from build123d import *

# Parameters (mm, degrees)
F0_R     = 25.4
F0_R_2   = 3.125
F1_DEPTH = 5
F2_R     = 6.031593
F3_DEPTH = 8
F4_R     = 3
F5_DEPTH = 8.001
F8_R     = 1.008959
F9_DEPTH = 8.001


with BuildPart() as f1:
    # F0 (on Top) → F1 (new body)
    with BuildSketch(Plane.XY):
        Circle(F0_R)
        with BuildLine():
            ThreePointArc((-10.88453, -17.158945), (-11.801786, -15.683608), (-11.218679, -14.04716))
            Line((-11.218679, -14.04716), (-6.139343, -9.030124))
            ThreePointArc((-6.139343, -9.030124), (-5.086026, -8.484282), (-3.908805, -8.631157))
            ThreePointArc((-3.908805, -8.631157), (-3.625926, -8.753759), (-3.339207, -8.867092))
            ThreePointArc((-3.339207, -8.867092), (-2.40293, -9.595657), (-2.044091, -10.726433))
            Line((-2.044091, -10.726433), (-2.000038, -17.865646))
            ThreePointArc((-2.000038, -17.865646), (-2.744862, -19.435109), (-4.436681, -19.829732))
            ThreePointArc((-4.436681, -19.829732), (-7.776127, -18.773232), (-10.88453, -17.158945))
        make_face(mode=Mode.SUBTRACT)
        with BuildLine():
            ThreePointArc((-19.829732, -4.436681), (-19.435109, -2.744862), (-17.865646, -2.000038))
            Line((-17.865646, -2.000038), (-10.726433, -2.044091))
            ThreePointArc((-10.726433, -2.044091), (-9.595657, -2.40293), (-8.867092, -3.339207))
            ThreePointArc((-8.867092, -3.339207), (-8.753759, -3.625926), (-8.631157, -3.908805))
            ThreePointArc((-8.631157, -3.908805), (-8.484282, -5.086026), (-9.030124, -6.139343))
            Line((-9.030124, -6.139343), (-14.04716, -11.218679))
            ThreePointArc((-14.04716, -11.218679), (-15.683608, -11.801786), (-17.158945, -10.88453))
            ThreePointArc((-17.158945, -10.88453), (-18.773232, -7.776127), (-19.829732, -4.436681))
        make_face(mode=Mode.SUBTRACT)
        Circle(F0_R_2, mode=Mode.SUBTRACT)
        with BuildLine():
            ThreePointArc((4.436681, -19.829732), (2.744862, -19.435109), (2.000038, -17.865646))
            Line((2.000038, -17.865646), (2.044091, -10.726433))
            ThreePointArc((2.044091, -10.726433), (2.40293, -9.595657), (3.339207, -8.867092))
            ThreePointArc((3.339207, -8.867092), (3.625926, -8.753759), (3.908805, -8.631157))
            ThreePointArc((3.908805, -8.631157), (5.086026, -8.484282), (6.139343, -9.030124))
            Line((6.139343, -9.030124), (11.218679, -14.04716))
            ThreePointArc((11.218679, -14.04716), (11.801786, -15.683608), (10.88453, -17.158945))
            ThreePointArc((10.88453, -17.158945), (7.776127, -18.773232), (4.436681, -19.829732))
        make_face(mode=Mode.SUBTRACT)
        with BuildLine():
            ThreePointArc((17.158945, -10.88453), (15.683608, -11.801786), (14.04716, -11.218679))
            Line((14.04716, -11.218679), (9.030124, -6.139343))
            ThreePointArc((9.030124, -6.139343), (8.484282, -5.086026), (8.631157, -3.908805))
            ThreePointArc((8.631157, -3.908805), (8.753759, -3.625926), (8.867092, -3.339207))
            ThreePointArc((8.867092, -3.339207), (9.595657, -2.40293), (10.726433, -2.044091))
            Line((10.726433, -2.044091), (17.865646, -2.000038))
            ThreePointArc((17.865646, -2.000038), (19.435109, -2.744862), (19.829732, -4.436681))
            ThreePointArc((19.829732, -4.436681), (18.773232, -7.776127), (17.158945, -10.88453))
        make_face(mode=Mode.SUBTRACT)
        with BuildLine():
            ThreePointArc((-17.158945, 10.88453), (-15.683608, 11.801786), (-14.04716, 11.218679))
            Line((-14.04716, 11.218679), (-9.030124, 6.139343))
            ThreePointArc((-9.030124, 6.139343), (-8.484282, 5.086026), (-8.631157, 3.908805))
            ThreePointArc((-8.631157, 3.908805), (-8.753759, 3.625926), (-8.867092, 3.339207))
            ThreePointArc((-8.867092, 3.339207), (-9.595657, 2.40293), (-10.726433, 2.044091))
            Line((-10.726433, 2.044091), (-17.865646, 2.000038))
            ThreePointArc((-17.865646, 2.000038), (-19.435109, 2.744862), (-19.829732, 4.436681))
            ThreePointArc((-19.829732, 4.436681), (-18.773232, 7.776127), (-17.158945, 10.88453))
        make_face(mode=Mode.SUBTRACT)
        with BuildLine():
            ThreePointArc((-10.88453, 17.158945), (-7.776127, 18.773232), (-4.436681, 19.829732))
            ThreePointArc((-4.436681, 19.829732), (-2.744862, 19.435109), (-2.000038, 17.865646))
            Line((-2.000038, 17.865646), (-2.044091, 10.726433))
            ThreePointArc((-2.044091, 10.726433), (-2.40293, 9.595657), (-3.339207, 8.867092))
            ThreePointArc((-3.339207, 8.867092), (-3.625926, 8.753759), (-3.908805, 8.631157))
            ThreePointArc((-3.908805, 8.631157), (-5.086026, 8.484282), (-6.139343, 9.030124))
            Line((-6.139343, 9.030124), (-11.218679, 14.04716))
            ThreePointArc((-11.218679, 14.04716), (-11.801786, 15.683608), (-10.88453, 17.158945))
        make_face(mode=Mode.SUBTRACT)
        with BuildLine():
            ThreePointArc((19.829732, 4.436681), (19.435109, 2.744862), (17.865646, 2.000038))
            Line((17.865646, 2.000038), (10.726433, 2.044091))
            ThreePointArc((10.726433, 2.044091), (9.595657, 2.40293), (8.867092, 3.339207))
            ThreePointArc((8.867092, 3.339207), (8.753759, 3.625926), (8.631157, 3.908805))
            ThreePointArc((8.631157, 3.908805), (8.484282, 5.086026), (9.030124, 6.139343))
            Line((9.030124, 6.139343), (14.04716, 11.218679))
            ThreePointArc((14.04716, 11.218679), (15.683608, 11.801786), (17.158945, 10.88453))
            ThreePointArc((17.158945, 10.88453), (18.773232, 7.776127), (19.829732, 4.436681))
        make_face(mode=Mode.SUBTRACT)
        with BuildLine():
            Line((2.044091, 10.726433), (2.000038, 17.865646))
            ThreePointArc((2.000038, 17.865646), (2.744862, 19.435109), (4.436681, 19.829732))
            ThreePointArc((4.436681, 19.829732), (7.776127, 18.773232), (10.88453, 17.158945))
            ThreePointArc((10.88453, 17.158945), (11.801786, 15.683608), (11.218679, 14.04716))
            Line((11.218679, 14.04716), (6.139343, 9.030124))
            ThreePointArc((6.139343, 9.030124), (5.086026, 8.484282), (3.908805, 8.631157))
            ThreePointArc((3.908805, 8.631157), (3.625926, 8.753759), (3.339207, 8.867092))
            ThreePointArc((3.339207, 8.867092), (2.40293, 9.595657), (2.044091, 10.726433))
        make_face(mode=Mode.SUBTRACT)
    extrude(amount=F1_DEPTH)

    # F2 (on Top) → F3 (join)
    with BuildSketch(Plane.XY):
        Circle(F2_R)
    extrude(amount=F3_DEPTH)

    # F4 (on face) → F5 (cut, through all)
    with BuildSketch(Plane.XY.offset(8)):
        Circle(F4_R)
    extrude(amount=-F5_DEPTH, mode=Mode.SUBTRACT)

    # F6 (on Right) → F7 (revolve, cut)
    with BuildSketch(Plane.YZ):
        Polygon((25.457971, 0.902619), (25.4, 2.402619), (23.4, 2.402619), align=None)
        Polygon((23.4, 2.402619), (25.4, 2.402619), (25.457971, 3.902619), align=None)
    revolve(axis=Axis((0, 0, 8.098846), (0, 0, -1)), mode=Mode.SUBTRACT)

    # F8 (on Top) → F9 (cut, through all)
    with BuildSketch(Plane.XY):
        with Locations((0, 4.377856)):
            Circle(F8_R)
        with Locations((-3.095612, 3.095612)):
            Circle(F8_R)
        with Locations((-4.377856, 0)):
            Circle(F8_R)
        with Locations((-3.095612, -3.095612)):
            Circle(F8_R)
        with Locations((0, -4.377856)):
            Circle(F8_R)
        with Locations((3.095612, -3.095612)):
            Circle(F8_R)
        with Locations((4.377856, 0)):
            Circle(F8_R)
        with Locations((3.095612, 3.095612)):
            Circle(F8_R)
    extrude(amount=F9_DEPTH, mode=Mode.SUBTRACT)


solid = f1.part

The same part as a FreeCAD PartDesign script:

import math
import FreeCAD as App
import Part
import Sketcher


def add_polygon(sketch, points):
    """Adds a closed chain of lines whose ends are joined by coincident constraints."""
    first, n = sketch.GeometryCount, len(points)
    for a, b in zip(points, points[1:] + points[:1]):
        sketch.addGeometry(Part.LineSegment(App.Vector(*a, 0), App.Vector(*b, 0)), False)
    for i in range(n):
        sketch.addConstraint(Sketcher.Constraint("Coincident", first + i, 2, first + (i + 1) % n, 1))

doc = App.newDocument("Part")
body = doc.addObject("PartDesign::Body", "Body")

# Sketch on XY plane
sketch1 = doc.addObject("Sketcher::SketchObject", "Sketch")
body.addObject(sketch1)
sketch1.AttachmentSupport = (doc.XY_Plane, [""])
sketch1.MapMode = "FlatFace"
sketch1.addGeometry([
    Part.Circle(App.Vector(0, 0, 0), App.Vector(0, 0, 1), 25.4),  # 0
    Part.ArcOfCircle(Part.Circle(App.Vector(0.000006, 0.000011, 0), App.Vector(0, 0, 1), 20.320012), math.radians(-122.38841), math.radians(-102.611597)),  # 1
    Part.ArcOfCircle(Part.Circle(App.Vector(-9.813218, -15.470072, 0), App.Vector(0, 0, 1), 2), math.radians(134.646484), math.radians(237.61159)),  # 2
    Part.LineSegment(App.Vector(-11.218679, -14.04716, 0), App.Vector(-6.139343, -9.030124, 0)),  # 3
    Part.ArcOfCircle(Part.Circle(App.Vector(-4.733883, -10.453035, 0), App.Vector(0, 0, 1), 1.999999), math.radians(65.635551), math.radians(134.646482)),  # 4
    Part.ArcOfCircle(Part.Circle(App.Vector(-0.000391, -0.000936, 0), App.Vector(0, 0, 1), 9.473986), math.radians(-114.364598), math.radians(-110.635364)),  # 5
    Part.ArcOfCircle(Part.Circle(App.Vector(-4.044053, -10.738774, 0), App.Vector(0, 0, 1), 2), math.radians(0.353533), math.radians(69.364417)),  # 6
    Part.LineSegment(App.Vector(-2.044091, -10.726433, 0), App.Vector(-2.000038, -17.865646, 0)),  # 7
    Part.ArcOfCircle(Part.Circle(App.Vector(-4, -17.877987, 0), App.Vector(0, 0, 1), 2), math.radians(-102.611598), math.radians(0.353553)),  # 8
    Part.ArcOfCircle(Part.Circle(App.Vector(0.000011, 0.000006, 0), App.Vector(0, 0, 1), 20.320012), math.radians(-167.388403), math.radians(-147.61159)),  # 9
    Part.ArcOfCircle(Part.Circle(App.Vector(-17.877987, -4, 0), App.Vector(0, 0, 1), 2), math.radians(89.646447), math.radians(192.611598)),  # 10
    Part.LineSegment(App.Vector(-17.865646, -2.000038, 0), App.Vector(-10.726433, -2.044091, 0)),  # 11
    Part.ArcOfCircle(Part.Circle(App.Vector(-10.738774, -4.044053, 0), App.Vector(0, 0, 1), 2), math.radians(20.635583), math.radians(89.646467)),  # 12
    Part.ArcOfCircle(Part.Circle(App.Vector(-0.000936, -0.000391, 0), App.Vector(0, 0, 1), 9.473986), math.radians(-159.364636), math.radians(-155.635402)),  # 13
    Part.ArcOfCircle(Part.Circle(App.Vector(-10.453035, -4.733883, 0), App.Vector(0, 0, 1), 1.999999), math.radians(-44.646482), math.radians(24.364449)),  # 14
    Part.LineSegment(App.Vector(-9.030124, -6.139343, 0), App.Vector(-14.04716, -11.218679, 0)),  # 15
    Part.ArcOfCircle(Part.Circle(App.Vector(-15.470072, -9.813218, 0), App.Vector(0, 0, 1), 2), math.radians(-147.61159), math.radians(-44.646484)),  # 16
    Part.ArcOfCircle(Part.Circle(App.Vector(-0.000006, 0.000011, 0), App.Vector(0, 0, 1), 20.320012), math.radians(-77.388403), math.radians(-57.61159)),  # 17
    Part.ArcOfCircle(Part.Circle(App.Vector(4, -17.877987, 0), App.Vector(0, 0, 1), 2), math.radians(179.646447), math.radians(282.611598)),  # 18
    Part.LineSegment(App.Vector(2.000038, -17.865646, 0), App.Vector(2.044091, -10.726433, 0)),  # 19
    Part.ArcOfCircle(Part.Circle(App.Vector(4.044053, -10.738774, 0), App.Vector(0, 0, 1), 2), math.radians(110.635583), math.radians(179.646467)),  # 20
    Part.ArcOfCircle(Part.Circle(App.Vector(0.000391, -0.000936, 0), App.Vector(0, 0, 1), 9.473986), math.radians(-69.364636), math.radians(-65.635402)),  # 21
    Part.ArcOfCircle(Part.Circle(App.Vector(4.733883, -10.453035, 0), App.Vector(0, 0, 1), 1.999999), math.radians(45.353518), math.radians(114.364449)),  # 22
    Part.LineSegment(App.Vector(6.139343, -9.030124, 0), App.Vector(11.218679, -14.04716, 0)),  # 23
    Part.ArcOfCircle(Part.Circle(App.Vector(9.813218, -15.470072, 0), App.Vector(0, 0, 1), 2), math.radians(-57.61159), math.radians(45.353516)),  # 24
    Part.ArcOfCircle(Part.Circle(App.Vector(-0.000011, 0.000006, 0), App.Vector(0, 0, 1), 20.320012), math.radians(-32.38841), math.radians(-12.611597)),  # 25
    Part.ArcOfCircle(Part.Circle(App.Vector(15.470072, -9.813218, 0), App.Vector(0, 0, 1), 2), math.radians(-135.353516), math.radians(-32.38841)),  # 26
    Part.LineSegment(App.Vector(14.04716, -11.218679, 0), App.Vector(9.030124, -6.139343, 0)),  # 27
    Part.ArcOfCircle(Part.Circle(App.Vector(10.453035, -4.733883, 0), App.Vector(0, 0, 1), 1.999999), math.radians(155.635551), math.radians(224.646482)),  # 28
    Part.ArcOfCircle(Part.Circle(App.Vector(0.000936, -0.000391, 0), App.Vector(0, 0, 1), 9.473986), math.radians(-24.364598), math.radians(-20.635364)),  # 29
    Part.ArcOfCircle(Part.Circle(App.Vector(10.738774, -4.044053, 0), App.Vector(0, 0, 1), 2), math.radians(90.353533), math.radians(159.364417)),  # 30
    Part.LineSegment(App.Vector(10.726433, -2.044091, 0), App.Vector(17.865646, -2.000038, 0)),  # 31
    Part.ArcOfCircle(Part.Circle(App.Vector(17.877987, -4, 0), App.Vector(0, 0, 1), 2), math.radians(-12.611598), math.radians(90.353553)),  # 32
    Part.ArcOfCircle(Part.Circle(App.Vector(0.000011, -0.000006, 0), App.Vector(0, 0, 1), 20.320012), math.radians(147.61159), math.radians(167.388403)),  # 33
    Part.ArcOfCircle(Part.Circle(App.Vector(-15.470072, 9.813218, 0), App.Vector(0, 0, 1), 2), math.radians(44.646484), math.radians(147.61159)),  # 34
    Part.LineSegment(App.Vector(-14.04716, 11.218679, 0), App.Vector(-9.030124, 6.139343, 0)),  # 35
    Part.ArcOfCircle(Part.Circle(App.Vector(-10.453035, 4.733883, 0), App.Vector(0, 0, 1), 1.999999), math.radians(-24.364449), math.radians(44.646482)),  # 36
    Part.ArcOfCircle(Part.Circle(App.Vector(-0.000936, 0.000391, 0), App.Vector(0, 0, 1), 9.473986), math.radians(155.635402), math.radians(159.364636)),  # 37
    Part.ArcOfCircle(Part.Circle(App.Vector(-10.738774, 4.044053, 0), App.Vector(0, 0, 1), 2), math.radians(-89.646467), math.radians(-20.635583)),  # 38
    Part.LineSegment(App.Vector(-10.726433, 2.044091, 0), App.Vector(-17.865646, 2.000038, 0)),  # 39
    Part.ArcOfCircle(Part.Circle(App.Vector(-17.877987, 4, 0), App.Vector(0, 0, 1), 2), math.radians(167.388402), math.radians(270.353553)),  # 40
    Part.ArcOfCircle(Part.Circle(App.Vector(-9.813218, 15.470072, 0), App.Vector(0, 0, 1), 2), math.radians(122.38841), math.radians(225.353516)),  # 41
    Part.ArcOfCircle(Part.Circle(App.Vector(0.000006, -0.000011, 0), App.Vector(0, 0, 1), 20.320012), math.radians(102.611597), math.radians(122.38841)),  # 42
    Part.ArcOfCircle(Part.Circle(App.Vector(-4, 17.877987, 0), App.Vector(0, 0, 1), 2), math.radians(-0.353553), math.radians(102.611598)),  # 43
    Part.LineSegment(App.Vector(-2.000038, 17.865646, 0), App.Vector(-2.044091, 10.726433, 0)),  # 44
    Part.ArcOfCircle(Part.Circle(App.Vector(-4.044053, 10.738774, 0), App.Vector(0, 0, 1), 2), math.radians(-69.364417), math.radians(-0.353533)),  # 45
    Part.ArcOfCircle(Part.Circle(App.Vector(-0.000391, 0.000936, 0), App.Vector(0, 0, 1), 9.473986), math.radians(110.635364), math.radians(114.364598)),  # 46
    Part.ArcOfCircle(Part.Circle(App.Vector(-4.733883, 10.453035, 0), App.Vector(0, 0, 1), 1.999999), math.radians(-134.646482), math.radians(-65.635551)),  # 47
    Part.LineSegment(App.Vector(-6.139343, 9.030124, 0), App.Vector(-11.218679, 14.04716, 0)),  # 48
    Part.Circle(App.Vector(0, 0, 0), App.Vector(0, 0, 1), 3.125),  # 49
    Part.ArcOfCircle(Part.Circle(App.Vector(-0.000011, -0.000006, 0), App.Vector(0, 0, 1), 20.320012), math.radians(12.611597), math.radians(32.38841)),  # 50
    Part.ArcOfCircle(Part.Circle(App.Vector(17.877987, 4, 0), App.Vector(0, 0, 1), 2), math.radians(-90.353553), math.radians(12.611598)),  # 51
    Part.LineSegment(App.Vector(17.865646, 2.000038, 0), App.Vector(10.726433, 2.044091, 0)),  # 52
    Part.ArcOfCircle(Part.Circle(App.Vector(10.738774, 4.044053, 0), App.Vector(0, 0, 1), 2), math.radians(-159.364417), math.radians(-90.353533)),  # 53
    Part.ArcOfCircle(Part.Circle(App.Vector(0.000936, 0.000391, 0), App.Vector(0, 0, 1), 9.473986), math.radians(20.635364), math.radians(24.364598)),  # 54
    Part.ArcOfCircle(Part.Circle(App.Vector(10.453035, 4.733883, 0), App.Vector(0, 0, 1), 1.999999), math.radians(135.353518), math.radians(204.364449)),  # 55
    Part.LineSegment(App.Vector(9.030124, 6.139343, 0), App.Vector(14.04716, 11.218679, 0)),  # 56
    Part.ArcOfCircle(Part.Circle(App.Vector(15.470072, 9.813218, 0), App.Vector(0, 0, 1), 2), math.radians(32.38841), math.radians(135.353516)),  # 57
    Part.ArcOfCircle(Part.Circle(App.Vector(4.044053, 10.738774, 0), App.Vector(0, 0, 1), 2), math.radians(-179.646467), math.radians(-110.635583)),  # 58
    Part.LineSegment(App.Vector(2.044091, 10.726433, 0), App.Vector(2.000038, 17.865646, 0)),  # 59
    Part.ArcOfCircle(Part.Circle(App.Vector(4, 17.877987, 0), App.Vector(0, 0, 1), 2), math.radians(77.388402), math.radians(180.353553)),  # 60
    Part.ArcOfCircle(Part.Circle(App.Vector(-0.000006, -0.000011, 0), App.Vector(0, 0, 1), 20.320012), math.radians(57.61159), math.radians(77.388403)),  # 61
    Part.ArcOfCircle(Part.Circle(App.Vector(9.813218, 15.470072, 0), App.Vector(0, 0, 1), 2), math.radians(-45.353516), math.radians(57.61159)),  # 62
    Part.LineSegment(App.Vector(11.218679, 14.04716, 0), App.Vector(6.139343, 9.030124, 0)),  # 63
    Part.ArcOfCircle(Part.Circle(App.Vector(4.733883, 10.453035, 0), App.Vector(0, 0, 1), 1.999999), math.radians(-114.364449), math.radians(-45.353518)),  # 64
    Part.ArcOfCircle(Part.Circle(App.Vector(0.000391, 0.000936, 0), App.Vector(0, 0, 1), 9.473986), math.radians(65.635402), math.radians(69.364636)),  # 65
], False)
sketch1.addConstraint([
    Sketcher.Constraint("Coincident", 1, 1, 2, 2),
    Sketcher.Constraint("Coincident", 2, 1, 3, 1),
    Sketcher.Constraint("Coincident", 3, 2, 4, 2),
    Sketcher.Constraint("Coincident", 4, 1, 5, 1),
    Sketcher.Constraint("Coincident", 5, 2, 6, 2),
    Sketcher.Constraint("Coincident", 6, 1, 7, 1),
    Sketcher.Constraint("Coincident", 7, 2, 8, 2),
    Sketcher.Constraint("Coincident", 8, 1, 1, 2),
    Sketcher.Constraint("Coincident", 9, 1, 10, 2),
    Sketcher.Constraint("Coincident", 10, 1, 11, 1),
    Sketcher.Constraint("Coincident", 11, 2, 12, 2),
    Sketcher.Constraint("Coincident", 12, 1, 13, 1),
    Sketcher.Constraint("Coincident", 13, 2, 14, 2),
    Sketcher.Constraint("Coincident", 14, 1, 15, 1),
    Sketcher.Constraint("Coincident", 15, 2, 16, 2),
    Sketcher.Constraint("Coincident", 16, 1, 9, 2),
    Sketcher.Constraint("Coincident", 17, 1, 18, 2),
    Sketcher.Constraint("Coincident", 18, 1, 19, 1),
    Sketcher.Constraint("Coincident", 19, 2, 20, 2),
    Sketcher.Constraint("Coincident", 20, 1, 21, 1),
    Sketcher.Constraint("Coincident", 21, 2, 22, 2),
    Sketcher.Constraint("Coincident", 22, 1, 23, 1),
    Sketcher.Constraint("Coincident", 23, 2, 24, 2),
    Sketcher.Constraint("Coincident", 24, 1, 17, 2),
    Sketcher.Constraint("Coincident", 25, 1, 26, 2),
    Sketcher.Constraint("Coincident", 26, 1, 27, 1),
    Sketcher.Constraint("Coincident", 27, 2, 28, 2),
    Sketcher.Constraint("Coincident", 28, 1, 29, 1),
    Sketcher.Constraint("Coincident", 29, 2, 30, 2),
    Sketcher.Constraint("Coincident", 30, 1, 31, 1),
    Sketcher.Constraint("Coincident", 31, 2, 32, 2),
    Sketcher.Constraint("Coincident", 32, 1, 25, 2),
    Sketcher.Constraint("Coincident", 33, 1, 34, 2),
    Sketcher.Constraint("Coincident", 34, 1, 35, 1),
    Sketcher.Constraint("Coincident", 35, 2, 36, 2),
    Sketcher.Constraint("Coincident", 36, 1, 37, 1),
    Sketcher.Constraint("Coincident", 37, 2, 38, 2),
    Sketcher.Constraint("Coincident", 38, 1, 39, 1),
    Sketcher.Constraint("Coincident", 39, 2, 40, 2),
    Sketcher.Constraint("Coincident", 40, 1, 33, 2),
    Sketcher.Constraint("Coincident", 41, 1, 42, 2),
    Sketcher.Constraint("Coincident", 42, 1, 43, 2),
    Sketcher.Constraint("Coincident", 43, 1, 44, 1),
    Sketcher.Constraint("Coincident", 44, 2, 45, 2),
    Sketcher.Constraint("Coincident", 45, 1, 46, 1),
    Sketcher.Constraint("Coincident", 46, 2, 47, 2),
    Sketcher.Constraint("Coincident", 47, 1, 48, 1),
    Sketcher.Constraint("Coincident", 48, 2, 41, 2),
    Sketcher.Constraint("Coincident", 50, 1, 51, 2),
    Sketcher.Constraint("Coincident", 51, 1, 52, 1),
    Sketcher.Constraint("Coincident", 52, 2, 53, 2),
    Sketcher.Constraint("Coincident", 53, 1, 54, 1),
    Sketcher.Constraint("Coincident", 54, 2, 55, 2),
    Sketcher.Constraint("Coincident", 55, 1, 56, 1),
    Sketcher.Constraint("Coincident", 56, 2, 57, 2),
    Sketcher.Constraint("Coincident", 57, 1, 50, 2),
    Sketcher.Constraint("Coincident", 58, 1, 59, 1),
    Sketcher.Constraint("Coincident", 59, 2, 60, 2),
    Sketcher.Constraint("Coincident", 60, 1, 61, 2),
    Sketcher.Constraint("Coincident", 61, 1, 62, 2),
    Sketcher.Constraint("Coincident", 62, 1, 63, 1),
    Sketcher.Constraint("Coincident", 63, 2, 64, 2),
    Sketcher.Constraint("Coincident", 64, 1, 65, 1),
    Sketcher.Constraint("Coincident", 65, 2, 58, 2),
    Sketcher.Constraint("Coincident", 0, 3, -1, 1),
    Sketcher.Constraint("Coincident", 49, 3, -1, 1),
    Sketcher.Constraint("Coincident", 9, 3, 1, 3),
    Sketcher.Constraint("Coincident", 25, 3, 17, 3),
    Sketcher.Constraint("Coincident", 42, 3, 33, 3),
    Sketcher.Constraint("Coincident", 61, 3, 50, 3),
    Sketcher.Constraint("Radius", 2, 2.0),
    Sketcher.Constraint("Radius", 4, 1.999999),
    Sketcher.Constraint("Radius", 6, 2.0),
    Sketcher.Constraint("Radius", 8, 2.0),
    Sketcher.Constraint("Radius", 10, 2.0),
    Sketcher.Constraint("Radius", 12, 2.0),
    Sketcher.Constraint("Radius", 14, 1.999999),
    Sketcher.Constraint("Radius", 16, 2.0),
    Sketcher.Constraint("Radius", 18, 2.0),
    Sketcher.Constraint("Radius", 20, 2.0),
    Sketcher.Constraint("Radius", 22, 1.999999),
    Sketcher.Constraint("Radius", 24, 2.0),
    Sketcher.Constraint("Radius", 26, 2.0),
    Sketcher.Constraint("Radius", 28, 1.999999),
    Sketcher.Constraint("Radius", 30, 2.0),
    Sketcher.Constraint("Radius", 32, 2.0),
    Sketcher.Constraint("Radius", 34, 2.0),
    Sketcher.Constraint("Radius", 36, 1.999999),
    Sketcher.Constraint("Radius", 38, 2.0),
    Sketcher.Constraint("Radius", 40, 2.0),
    Sketcher.Constraint("Radius", 41, 2.0),
    Sketcher.Constraint("Radius", 43, 2.0),
    Sketcher.Constraint("Radius", 45, 2.0),
    Sketcher.Constraint("Radius", 47, 1.999999),
    Sketcher.Constraint("Radius", 51, 2.0),
    Sketcher.Constraint("Radius", 53, 2.0),
    Sketcher.Constraint("Radius", 55, 1.999999),
    Sketcher.Constraint("Radius", 57, 2.0),
    Sketcher.Constraint("Radius", 58, 2.0),
    Sketcher.Constraint("Radius", 60, 2.0),
    Sketcher.Constraint("Radius", 62, 2.0),
    Sketcher.Constraint("Radius", 64, 1.999999),
    Sketcher.Constraint("Diameter", 0, 50.8),
    Sketcher.Constraint("Diameter", 49, 6.25),
    Sketcher.Constraint("DistanceX", 8, 3, -1, 1, 4.0),
    Sketcher.Constraint("DistanceY", 10, 3, -1, 1, 4.0),
    Sketcher.Constraint("DistanceX", -1, 1, 18, 3, 4.0),
    Sketcher.Constraint("DistanceY", 32, 3, -1, 1, 4.0),
    Sketcher.Constraint("DistanceY", -1, 1, 40, 3, 4.0),
    Sketcher.Constraint("DistanceX", 43, 3, -1, 1, 4.0),
    Sketcher.Constraint("DistanceY", -1, 1, 51, 3, 4.0),
    Sketcher.Constraint("DistanceX", -1, 1, 60, 3, 4.0),
    Sketcher.Constraint("Radius", 1, 20.320012),
    Sketcher.Constraint("Radius", 9, 20.320012),
    Sketcher.Constraint("Radius", 17, 20.320012),
    Sketcher.Constraint("Radius", 25, 20.320012),
    Sketcher.Constraint("Radius", 33, 20.320012),
    Sketcher.Constraint("Radius", 42, 20.320012),
    Sketcher.Constraint("Radius", 50, 20.320012),
    Sketcher.Constraint("Radius", 61, 20.320012),
    Sketcher.Constraint("Radius", 5, 9.473986),
    Sketcher.Constraint("Radius", 13, 9.473986),
    Sketcher.Constraint("Radius", 21, 9.473986),
    Sketcher.Constraint("Radius", 29, 9.473986),
    Sketcher.Constraint("Radius", 37, 9.473986),
    Sketcher.Constraint("Radius", 46, 9.473986),
    Sketcher.Constraint("Radius", 54, 9.473986),
    Sketcher.Constraint("Radius", 65, 9.473986),
    Sketcher.Constraint("Distance", 3, 7.139349),
    Sketcher.Constraint("Distance", 7, 7.139349),
    Sketcher.Constraint("Distance", 11, 7.139349),
    Sketcher.Constraint("Distance", 15, 7.139349),
    Sketcher.Constraint("Distance", 19, 7.139349),
    Sketcher.Constraint("Distance", 23, 7.139349),
    Sketcher.Constraint("Distance", 27, 7.139349),
    Sketcher.Constraint("Distance", 31, 7.139349),
    Sketcher.Constraint("Distance", 35, 7.139349),
    Sketcher.Constraint("Distance", 39, 7.139349),
    Sketcher.Constraint("Distance", 44, 7.139349),
    Sketcher.Constraint("Distance", 48, 7.139349),
    Sketcher.Constraint("Distance", 52, 7.139349),
    Sketcher.Constraint("Distance", 56, 7.139349),
    Sketcher.Constraint("Distance", 59, 7.139349),
    Sketcher.Constraint("Distance", 63, 7.139349),
    Sketcher.Constraint("DistanceX", 5, 3, -1, 1, 0.000391),
    Sketcher.Constraint("DistanceY", 13, 3, -1, 1, 0.000391),
    Sketcher.Constraint("DistanceX", -1, 1, 21, 3, 0.000391),
    Sketcher.Constraint("DistanceY", 29, 3, -1, 1, 0.000391),
    Sketcher.Constraint("DistanceY", -1, 1, 37, 3, 0.000391),
    Sketcher.Constraint("DistanceX", 46, 3, -1, 1, 0.000391),
    Sketcher.Constraint("DistanceY", -1, 1, 54, 3, 0.000391),
    Sketcher.Constraint("DistanceX", -1, 1, 65, 3, 0.000391),
    Sketcher.Constraint("DistanceX", 1, 1, -1, 1, 10.88453),
    Sketcher.Constraint("DistanceX", 2, 1, -1, 1, 11.218679),
    Sketcher.Constraint("DistanceY", 2, 1, -1, 1, 14.04716),
    Sketcher.Constraint("DistanceX", 6, 1, -1, 1, 2.044091),
    Sketcher.Constraint("DistanceX", 7, 2, -1, 1, 2.000038),
    Sketcher.Constraint("DistanceX", 8, 1, -1, 1, 4.436681),
    Sketcher.Constraint("DistanceX", 9, 1, -1, 1, 19.829732),
    Sketcher.Constraint("DistanceY", 9, 1, -1, 1, 4.436681),
    Sketcher.Constraint("DistanceY", 11, 2, -1, 1, 2.044091),
    Sketcher.Constraint("DistanceX", 12, 1, -1, 1, 8.867092),
    Sketcher.Constraint("DistanceX", 15, 2, -1, 1, 14.04716),
    Sketcher.Constraint("DistanceY", 15, 2, -1, 1, 11.218679),
    Sketcher.Constraint("DistanceY", 16, 1, -1, 1, 10.88453),
    Sketcher.Constraint("DistanceX", -1, 1, 17, 1, 4.436681),
    Sketcher.Constraint("DistanceY", 17, 1, -1, 1, 19.829732),
    Sketcher.Constraint("DistanceX", -1, 1, 19, 2, 2.044091),
    Sketcher.Constraint("DistanceY", 20, 1, -1, 1, 8.867092),
    Sketcher.Constraint("DistanceX", -1, 1, 23, 2, 11.218679),
    Sketcher.Constraint("DistanceY", 23, 2, -1, 1, 14.04716),
    Sketcher.Constraint("DistanceX", -1, 1, 24, 1, 10.88453),
    Sketcher.Constraint("DistanceY", 25, 1, -1, 1, 10.88453),
    Sketcher.Constraint("DistanceX", -1, 1, 26, 1, 14.04716),
    Sketcher.Constraint("DistanceY", 26, 1, -1, 1, 11.218679),
    Sketcher.Constraint("DistanceY", 30, 1, -1, 1, 2.044091),
    Sketcher.Constraint("DistanceY", 31, 2, -1, 1, 2.000038),
    Sketcher.Constraint("DistanceY", 32, 1, -1, 1, 4.436681),
    Sketcher.Constraint("DistanceY", -1, 1, 33, 1, 10.88453),
    Sketcher.Constraint("DistanceX", 34, 1, -1, 1, 14.04716),
    Sketcher.Constraint("DistanceY", -1, 1, 34, 1, 11.218679),
    Sketcher.Constraint("DistanceY", -1, 1, 38, 1, 2.044091),
    Sketcher.Constraint("DistanceY", -1, 1, 39, 2, 2.000038),
    Sketcher.Constraint("DistanceY", -1, 1, 40, 1, 4.436681),
    Sketcher.Constraint("DistanceX", 41, 1, -1, 1, 10.88453),
    Sketcher.Constraint("DistanceX", 42, 1, -1, 1, 4.436681),
    Sketcher.Constraint("DistanceY", -1, 1, 42, 1, 19.829732),
    Sketcher.Constraint("DistanceX", 44, 2, -1, 1, 2.044091),
    Sketcher.Constraint("DistanceY", -1, 1, 45, 1, 8.867092),
    Sketcher.Constraint("DistanceX", 48, 2, -1, 1, 11.218679),
    Sketcher.Constraint("DistanceY", -1, 1, 48, 2, 14.04716),
    Sketcher.Constraint("DistanceX", -1, 1, 50, 1, 19.829732),
    Sketcher.Constraint("DistanceY", -1, 1, 50, 1, 4.436681),
    Sketcher.Constraint("DistanceY", -1, 1, 52, 2, 2.044091),
    Sketcher.Constraint("DistanceX", -1, 1, 53, 1, 8.867092),
    Sketcher.Constraint("DistanceX", -1, 1, 56, 2, 14.04716),
    Sketcher.Constraint("DistanceY", -1, 1, 56, 2, 11.218679),
    Sketcher.Constraint("DistanceY", -1, 1, 57, 1, 10.88453),
    Sketcher.Constraint("DistanceX", -1, 1, 58, 1, 2.044091),
    Sketcher.Constraint("DistanceX", -1, 1, 59, 2, 2.000038),
    Sketcher.Constraint("DistanceX", -1, 1, 60, 1, 4.436681),
    Sketcher.Constraint("DistanceX", -1, 1, 61, 1, 10.88453),
    Sketcher.Constraint("DistanceX", -1, 1, 62, 1, 11.218679),
    Sketcher.Constraint("DistanceY", -1, 1, 62, 1, 14.04716),
    Sketcher.Constraint("DistanceX", 2, 3, -1, 1, 9.813218),
    Sketcher.Constraint("DistanceX", 4, 3, -1, 1, 4.733883),
    Sketcher.Constraint("DistanceY", 4, 3, -1, 1, 10.453035),
    Sketcher.Constraint("DistanceX", 12, 3, -1, 1, 10.738774),
    Sketcher.Constraint("DistanceY", 12, 3, -1, 1, 4.044053),
    Sketcher.Constraint("DistanceX", 14, 3, -1, 1, 10.453035),
    Sketcher.Constraint("DistanceX", -1, 1, 20, 3, 4.044053),
    Sketcher.Constraint("DistanceY", 20, 3, -1, 1, 10.738774),
    Sketcher.Constraint("DistanceX", -1, 1, 22, 3, 4.733883),
    Sketcher.Constraint("DistanceX", -1, 1, 24, 3, 9.813218),
    Sketcher.Constraint("DistanceX", -1, 1, 28, 3, 10.453035),
    Sketcher.Constraint("DistanceY", 28, 3, -1, 1, 4.733883),
    Sketcher.Constraint("DistanceX", 34, 3, -1, 1, 15.470072),
    Sketcher.Constraint("DistanceX", 36, 3, -1, 1, 10.453035),
    Sketcher.Constraint("DistanceY", -1, 1, 36, 3, 4.733883),
    Sketcher.Constraint("DistanceX", 45, 3, -1, 1, 4.044053),
    Sketcher.Constraint("DistanceY", -1, 1, 45, 3, 10.738774),
    Sketcher.Constraint("DistanceX", 47, 3, -1, 1, 4.733883),
    Sketcher.Constraint("DistanceX", -1, 1, 53, 3, 10.738774),
    Sketcher.Constraint("DistanceY", -1, 1, 53, 3, 4.044053),
    Sketcher.Constraint("DistanceX", -1, 1, 55, 3, 10.453035),
    Sketcher.Constraint("DistanceX", -1, 1, 57, 3, 15.470072),
    Sketcher.Constraint("DistanceX", -1, 1, 58, 3, 4.044053),
    Sketcher.Constraint("DistanceX", -1, 1, 64, 3, 4.733883),
    Sketcher.Constraint("DistanceX", 4, 1, -1, 1, 3.908805),
    Sketcher.Constraint("DistanceX", 5, 2, -1, 1, 3.339207),
    Sketcher.Constraint("DistanceX", 13, 2, -1, 1, 8.631157),
    Sketcher.Constraint("DistanceX", -1, 1, 21, 2, 3.908805),
    Sketcher.Constraint("DistanceX", -1, 1, 28, 1, 8.631157),
    Sketcher.Constraint("DistanceX", -1, 1, 29, 2, 8.867092),
    Sketcher.Constraint("DistanceX", 36, 1, -1, 1, 8.631157),
    Sketcher.Constraint("DistanceX", 37, 2, -1, 1, 8.867092),
    Sketcher.Constraint("DistanceX", 46, 2, -1, 1, 3.908805),
    Sketcher.Constraint("DistanceX", -1, 1, 54, 2, 8.631157),
    Sketcher.Constraint("DistanceX", -1, 1, 64, 1, 3.908805),
    Sketcher.Constraint("DistanceX", -1, 1, 65, 2, 3.339207),
])
pad1 = doc.addObject("PartDesign::Pad", "Pad")
body.addObject(pad1)
pad1.Profile = sketch1
pad1.Length = 5

# Sketch on XY plane
sketch2 = doc.addObject("Sketcher::SketchObject", "Sketch001")
body.addObject(sketch2)
sketch2.AttachmentSupport = (doc.XY_Plane, [""])
sketch2.MapMode = "FlatFace"
sketch2.addGeometry(Part.Circle(App.Vector(0, 0, 0), App.Vector(0, 0, 1), 6.031593), False)
sketch2.addConstraint([
    Sketcher.Constraint("Coincident", 0, 3, -1, 1),
    Sketcher.Constraint("Diameter", 0, 12.063186),
])
pad2 = doc.addObject("PartDesign::Pad", "Pad001")
body.addObject(pad2)
pad2.Profile = sketch2
pad2.Length = 8

# Sketch on XY plane
sketch3 = doc.addObject("Sketcher::SketchObject", "Sketch002")
body.addObject(sketch3)
sketch3.AttachmentSupport = (doc.XY_Plane, [""])
sketch3.MapMode = "FlatFace"
sketch3.AttachmentOffset = App.Placement(App.Vector(0, 0, 8), App.Rotation())
sketch3.addGeometry(Part.Circle(App.Vector(0, 0, 0), App.Vector(0, 0, 1), 3), False)
sketch3.addConstraint([
    Sketcher.Constraint("Coincident", 0, 3, -1, 1),
    Sketcher.Constraint("Diameter", 0, 6.0),
])
pocket1 = doc.addObject("PartDesign::Pocket", "Pocket")
body.addObject(pocket1)
pocket1.Profile = sketch3
pocket1.Type = "ThroughAll"

# Sketch on YZ plane
sketch4 = doc.addObject("Sketcher::SketchObject", "Sketch003")
body.addObject(sketch4)
sketch4.AttachmentSupport = (doc.YZ_Plane, [""])
sketch4.MapMode = "FlatFace"
add_polygon(sketch4, [(25.457971, 0.902619), (25.4, 2.402619), (25.457971, 3.902619), (23.4, 2.402619)])  # lines 0-3
sketch4.addConstraint([
    Sketcher.Constraint("Horizontal", 0, 2, 2, 2),
    Sketcher.Constraint("Vertical", 1, 2, 3, 2),
    Sketcher.Constraint("Equal", 0, 1),
    Sketcher.Constraint("DistanceX", 2, 2, 0, 2, 2.0),
    Sketcher.Constraint("DistanceY", 3, 2, 1, 2, 3.0),
    Sketcher.Constraint("DistanceX", -1, 1, 0, 2, 25.4),
    Sketcher.Constraint("Distance", 0, 1.50112),
    Sketcher.Constraint("DistanceY", -1, 1, 0, 2, 2.402619),
])
groove = doc.addObject("PartDesign::Groove", "Groove")
body.addObject(groove)
groove.Profile = sketch4
groove.ReferenceAxis = (sketch4, ["V_Axis"])
groove.Angle = 360

# Sketch on XY plane
sketch5 = doc.addObject("Sketcher::SketchObject", "Sketch004")
body.addObject(sketch5)
sketch5.AttachmentSupport = (doc.XY_Plane, [""])
sketch5.MapMode = "FlatFace"
sketch5.addGeometry([
    Part.Circle(App.Vector(0, 4.377856, 0), App.Vector(0, 0, 1), 1.008959),  # 0
    Part.Circle(App.Vector(-3.095612, 3.095612, 0), App.Vector(0, 0, 1), 1.008959),  # 1
    Part.Circle(App.Vector(-4.377856, 0, 0), App.Vector(0, 0, 1), 1.008959),  # 2
    Part.Circle(App.Vector(-3.095612, -3.095612, 0), App.Vector(0, 0, 1), 1.008959),  # 3
    Part.Circle(App.Vector(0, -4.377856, 0), App.Vector(0, 0, 1), 1.008959),  # 4
    Part.Circle(App.Vector(3.095612, -3.095612, 0), App.Vector(0, 0, 1), 1.008959),  # 5
    Part.Circle(App.Vector(4.377856, 0, 0), App.Vector(0, 0, 1), 1.008959),  # 6
    Part.Circle(App.Vector(3.095612, 3.095612, 0), App.Vector(0, 0, 1), 1.008959),  # 7
], False)
sketch5.addConstraint([
    Sketcher.Constraint("Equal", 0, 1),
    Sketcher.Constraint("Equal", 1, 2),
    Sketcher.Constraint("Equal", 2, 3),
    Sketcher.Constraint("Equal", 3, 4),
    Sketcher.Constraint("Equal", 4, 5),
    Sketcher.Constraint("Equal", 5, 6),
    Sketcher.Constraint("Equal", 6, 7),
    Sketcher.Constraint("Symmetric", 0, 3, 4, 3, -1, 1),
    Sketcher.Constraint("Symmetric", 1, 3, 5, 3, -1, 1),
    Sketcher.Constraint("Symmetric", 2, 3, 6, 3, -1, 1),
    Sketcher.Constraint("Symmetric", 3, 3, 7, 3, -1, 1),
    Sketcher.Constraint("Symmetric", 3, 3, 5, 3, -2),
    Sketcher.Constraint("PointOnObject", 0, 3, -2),
    Sketcher.Constraint("PointOnObject", 2, 3, -1),
    Sketcher.Constraint("Diameter", 0, 2.017918),
    Sketcher.Constraint("DistanceX", 1, 3, -1, 1, 3.095612),
    Sketcher.Constraint("DistanceY", -1, 1, 1, 3, 3.095612),
    Sketcher.Constraint("DistanceY", 3, 3, 0, 3, 7.473468),
    Sketcher.Constraint("DistanceX", 2, 3, 5, 3, 7.473468),
])
pocket2 = doc.addObject("PartDesign::Pocket", "Pocket001")
body.addObject(pocket2)
pocket2.Profile = sketch5
pocket2.Type = "ThroughAll"
pocket2.Reversed = True

doc.recompute()
